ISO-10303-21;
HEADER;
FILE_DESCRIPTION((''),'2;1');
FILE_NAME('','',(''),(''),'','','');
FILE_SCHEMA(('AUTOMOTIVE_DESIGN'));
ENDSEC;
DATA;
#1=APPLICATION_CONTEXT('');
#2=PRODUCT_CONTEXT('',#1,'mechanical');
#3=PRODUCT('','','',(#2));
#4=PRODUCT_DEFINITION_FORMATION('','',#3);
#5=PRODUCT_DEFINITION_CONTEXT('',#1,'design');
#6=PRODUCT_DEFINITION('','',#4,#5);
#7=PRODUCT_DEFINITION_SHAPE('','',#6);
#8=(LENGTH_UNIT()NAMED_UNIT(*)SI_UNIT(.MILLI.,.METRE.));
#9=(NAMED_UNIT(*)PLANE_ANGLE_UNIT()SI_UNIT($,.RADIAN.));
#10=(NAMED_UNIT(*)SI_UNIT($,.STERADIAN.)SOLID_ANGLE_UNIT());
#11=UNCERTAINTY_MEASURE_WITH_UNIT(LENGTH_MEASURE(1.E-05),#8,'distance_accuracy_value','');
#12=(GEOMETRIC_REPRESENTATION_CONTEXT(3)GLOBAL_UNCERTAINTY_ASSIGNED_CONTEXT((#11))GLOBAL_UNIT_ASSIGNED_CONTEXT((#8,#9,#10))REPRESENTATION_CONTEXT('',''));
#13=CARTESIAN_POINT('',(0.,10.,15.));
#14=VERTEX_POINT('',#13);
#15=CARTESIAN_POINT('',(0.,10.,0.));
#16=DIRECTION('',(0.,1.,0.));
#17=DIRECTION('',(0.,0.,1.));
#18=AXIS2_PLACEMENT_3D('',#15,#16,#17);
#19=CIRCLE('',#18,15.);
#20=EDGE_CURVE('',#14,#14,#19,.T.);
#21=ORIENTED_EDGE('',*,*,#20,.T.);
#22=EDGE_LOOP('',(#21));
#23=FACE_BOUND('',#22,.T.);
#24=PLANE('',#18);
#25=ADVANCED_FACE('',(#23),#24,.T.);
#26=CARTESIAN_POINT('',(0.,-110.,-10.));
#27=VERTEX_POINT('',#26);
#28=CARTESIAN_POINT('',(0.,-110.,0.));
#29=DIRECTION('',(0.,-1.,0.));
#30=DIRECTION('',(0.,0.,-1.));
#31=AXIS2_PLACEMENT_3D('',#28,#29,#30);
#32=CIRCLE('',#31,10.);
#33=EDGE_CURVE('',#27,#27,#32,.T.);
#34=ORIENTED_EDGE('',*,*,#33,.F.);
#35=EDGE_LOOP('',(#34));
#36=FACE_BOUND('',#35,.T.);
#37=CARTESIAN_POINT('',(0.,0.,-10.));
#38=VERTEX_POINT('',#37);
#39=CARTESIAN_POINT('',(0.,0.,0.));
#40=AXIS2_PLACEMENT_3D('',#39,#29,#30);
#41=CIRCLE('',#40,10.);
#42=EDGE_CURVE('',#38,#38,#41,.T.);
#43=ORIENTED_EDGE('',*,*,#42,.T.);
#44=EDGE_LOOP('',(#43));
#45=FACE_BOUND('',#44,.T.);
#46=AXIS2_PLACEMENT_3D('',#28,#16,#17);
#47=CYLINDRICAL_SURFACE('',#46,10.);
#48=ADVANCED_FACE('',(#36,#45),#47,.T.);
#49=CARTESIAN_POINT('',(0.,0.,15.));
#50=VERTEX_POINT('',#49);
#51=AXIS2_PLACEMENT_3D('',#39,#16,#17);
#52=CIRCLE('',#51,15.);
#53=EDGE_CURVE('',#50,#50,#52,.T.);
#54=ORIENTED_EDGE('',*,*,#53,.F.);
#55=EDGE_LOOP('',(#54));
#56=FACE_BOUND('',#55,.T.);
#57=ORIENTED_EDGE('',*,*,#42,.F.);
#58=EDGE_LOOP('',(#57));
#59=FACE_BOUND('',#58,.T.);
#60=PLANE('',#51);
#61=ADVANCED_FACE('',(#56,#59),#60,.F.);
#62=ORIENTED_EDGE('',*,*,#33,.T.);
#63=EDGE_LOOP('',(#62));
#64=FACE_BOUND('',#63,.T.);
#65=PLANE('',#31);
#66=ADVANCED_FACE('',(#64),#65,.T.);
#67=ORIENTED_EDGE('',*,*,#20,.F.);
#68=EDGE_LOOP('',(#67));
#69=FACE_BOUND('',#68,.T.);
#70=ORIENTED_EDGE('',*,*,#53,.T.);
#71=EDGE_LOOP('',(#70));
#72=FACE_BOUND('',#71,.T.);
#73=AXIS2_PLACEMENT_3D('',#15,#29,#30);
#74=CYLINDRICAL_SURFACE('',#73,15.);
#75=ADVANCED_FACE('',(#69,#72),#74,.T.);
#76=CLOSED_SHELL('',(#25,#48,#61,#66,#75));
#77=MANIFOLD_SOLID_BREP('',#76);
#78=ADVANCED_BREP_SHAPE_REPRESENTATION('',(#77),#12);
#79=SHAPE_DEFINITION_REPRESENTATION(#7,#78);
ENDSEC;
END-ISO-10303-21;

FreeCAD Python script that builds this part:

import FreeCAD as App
import Part
import Sketcher
from FreeCAD import Vector
Q = App.Units.Quantity

doc = App.newDocument("Part")
params = doc.addObject("Spreadsheet::Sheet", "Params")
for row, (alias, value) in enumerate([
    ("sketch1_diameter", "30 mm"),
    ("pad1_length", "10 mm"),
    ("sketch2_diameter", "20 mm"),
    ("pad2_length", "110 mm"),
], start=1):
    params.set(f"A{row}", alias)
    params.set(f"B{row}", "=" + value)
    params.setAlias(f"B{row}", alias)

body = doc.addObject("PartDesign::Body", "Body")

# Sketch on XZ plane
sketch1 = doc.addObject("Sketcher::SketchObject", "Sketch")
body.addObject(sketch1)
sketch1.AttachmentSupport = (doc.XZ_Plane, [""])
sketch1.MapMode = "FlatFace"
sketch1.addGeometry(Part.Circle(Vector(0, 0, 0), Vector(0, 0, 1), 15), False)
sketch1.addConstraint([
    Sketcher.Constraint("Coincident", 0, 3, -1, 1),
    Sketcher.Constraint("Diameter", 0, Q("30 mm")),
])
sketch1.setExpression("Constraints[1]", "Params.sketch1_diameter")
pad1 = doc.addObject("PartDesign::Pad", "Pad")
body.addObject(pad1)
pad1.Profile = sketch1
pad1.setExpression("Length", "Params.pad1_length")
pad1.Reversed = True

# Sketch on XZ plane
sketch2 = doc.addObject("Sketcher::SketchObject", "Sketch001")
body.addObject(sketch2)
sketch2.AttachmentSupport = (doc.XZ_Plane, [""])
sketch2.MapMode = "FlatFace"
sketch2.addGeometry(Part.Circle(Vector(0, 0, 0), Vector(0, 0, 1), 10), False)
sketch2.addConstraint([
    Sketcher.Constraint("Coincident", 0, 3, -1, 1),
    Sketcher.Constraint("Diameter", 0, Q("20 mm")),
])
sketch2.setExpression("Constraints[1]", "Params.sketch2_diameter")
pad2 = doc.addObject("PartDesign::Pad", "Pad001")
body.addObject(pad2)
pad2.Profile = sketch2
pad2.setExpression("Length", "Params.pad2_length")

doc.recompute()
